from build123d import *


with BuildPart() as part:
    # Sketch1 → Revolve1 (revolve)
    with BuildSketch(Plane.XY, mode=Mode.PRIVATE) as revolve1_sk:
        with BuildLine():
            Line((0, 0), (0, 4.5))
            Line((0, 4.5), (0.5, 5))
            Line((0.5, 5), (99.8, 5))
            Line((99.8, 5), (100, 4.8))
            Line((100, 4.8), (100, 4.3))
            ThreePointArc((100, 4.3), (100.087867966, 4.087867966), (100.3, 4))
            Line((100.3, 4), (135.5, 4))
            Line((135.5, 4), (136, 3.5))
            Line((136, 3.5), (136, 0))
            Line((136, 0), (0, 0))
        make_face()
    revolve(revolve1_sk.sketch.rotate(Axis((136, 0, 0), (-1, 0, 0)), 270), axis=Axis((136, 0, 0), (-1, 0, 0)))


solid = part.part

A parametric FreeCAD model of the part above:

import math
import FreeCAD as App
import Part
import Sketcher

V = App.Vector
Q = App.Units.Quantity

doc = App.newDocument("Part")
body = doc.addObject("PartDesign::Body", "Body")

# Sketch on XY plane
sketch1 = doc.addObject("Sketcher::SketchObject", "Sketch")
body.addObject(sketch1)
sketch1.AttachmentSupport = (doc.XY_Plane, [""])
sketch1.MapMode = "FlatFace"
sketch1.addGeometry([
    Part.LineSegment(V(0, 4.5, 0), V(0, 0, 0)),  # 0
    Part.LineSegment(V(0, 0, 0), V(136, 0, 0)),  # 1
    Part.LineSegment(V(136, 0, 0), V(136, 3.5, 0)),  # 2
    Part.LineSegment(V(136, 3.5, 0), V(135.5, 4, 0)),  # 3
    Part.LineSegment(V(135.5, 4, 0), V(100.3, 4, 0)),  # 4
    Part.ArcOfCircle(Part.Circle(V(100.3, 4.3, 0), V(0, 0, 1), 0.3), math.radians(-180), math.radians(-90)),  # 5
    Part.LineSegment(V(100, 4.3, 0), V(100, 4.8, 0)),  # 6
    Part.LineSegment(V(100, 4.8, 0), V(99.8, 5, 0)),  # 7
    Part.LineSegment(V(99.8, 5, 0), V(0.5, 5, 0)),  # 8
    Part.LineSegment(V(0.5, 5, 0), V(0, 4.5, 0)),  # 9
], False)
sketch1.addConstraint([
    Sketcher.Constraint("Coincident", 0, 2, 1, 1),
    Sketcher.Constraint("Coincident", 1, 2, 2, 1),
    Sketcher.Constraint("Coincident", 2, 2, 3, 1),
    Sketcher.Constraint("Coincident", 3, 2, 4, 1),
    Sketcher.Constraint("Tangent", 4, 2, 5, 2),
    Sketcher.Constraint("Tangent", 5, 1, 6, 1),
    Sketcher.Constraint("Coincident", 6, 2, 7, 1),
    Sketcher.Constraint("Coincident", 7, 2, 8, 1),
    Sketcher.Constraint("Coincident", 8, 2, 9, 1),
    Sketcher.Constraint("Coincident", 9, 2, 0, 1),
    Sketcher.Constraint("Vertical", 0),
    Sketcher.Constraint("Horizontal", 1),
    Sketcher.Constraint("Vertical", 2),
    Sketcher.Constraint("Horizontal", 4),
    Sketcher.Constraint("Vertical", 6),
    Sketcher.Constraint("Horizontal", 8),
    Sketcher.Constraint("Coincident", 0, 2, -1, 1),
    Sketcher.Constraint("Parallel", 3, 7),
    Sketcher.Constraint("Perpendicular", 7, 9),
    Sketcher.Constraint("Equal", 3, 9),
    Sketcher.Constraint("Radius", 5, 0.3),
    Sketcher.Constraint("DistanceX", 1, 1, 1, 2, 136.0),
    Sketcher.Constraint("Angle", 3, Q("135 deg")),
    Sketcher.Constraint("DistanceX", 4, 2, 4, 1, 35.2),
    Sketcher.Constraint("DistanceX", 8, 2, 8, 1, 99.3),
    Sketcher.Constraint("DistanceY", 0, 2, 0, 1, 4.5),
    Sketcher.Constraint("DistanceY", 2, 1, 2, 2, 3.5),
    Sketcher.Constraint("DistanceY", 6, 1, 6, 2, 0.5),
])
revolution = doc.addObject("PartDesign::Revolution", "Revolution")
body.addObject(revolution)
revolution.Profile = sketch1
revolution.ReferenceAxis = (sketch1, ["H_Axis"])
revolution.Angle = 360

doc.recompute()
